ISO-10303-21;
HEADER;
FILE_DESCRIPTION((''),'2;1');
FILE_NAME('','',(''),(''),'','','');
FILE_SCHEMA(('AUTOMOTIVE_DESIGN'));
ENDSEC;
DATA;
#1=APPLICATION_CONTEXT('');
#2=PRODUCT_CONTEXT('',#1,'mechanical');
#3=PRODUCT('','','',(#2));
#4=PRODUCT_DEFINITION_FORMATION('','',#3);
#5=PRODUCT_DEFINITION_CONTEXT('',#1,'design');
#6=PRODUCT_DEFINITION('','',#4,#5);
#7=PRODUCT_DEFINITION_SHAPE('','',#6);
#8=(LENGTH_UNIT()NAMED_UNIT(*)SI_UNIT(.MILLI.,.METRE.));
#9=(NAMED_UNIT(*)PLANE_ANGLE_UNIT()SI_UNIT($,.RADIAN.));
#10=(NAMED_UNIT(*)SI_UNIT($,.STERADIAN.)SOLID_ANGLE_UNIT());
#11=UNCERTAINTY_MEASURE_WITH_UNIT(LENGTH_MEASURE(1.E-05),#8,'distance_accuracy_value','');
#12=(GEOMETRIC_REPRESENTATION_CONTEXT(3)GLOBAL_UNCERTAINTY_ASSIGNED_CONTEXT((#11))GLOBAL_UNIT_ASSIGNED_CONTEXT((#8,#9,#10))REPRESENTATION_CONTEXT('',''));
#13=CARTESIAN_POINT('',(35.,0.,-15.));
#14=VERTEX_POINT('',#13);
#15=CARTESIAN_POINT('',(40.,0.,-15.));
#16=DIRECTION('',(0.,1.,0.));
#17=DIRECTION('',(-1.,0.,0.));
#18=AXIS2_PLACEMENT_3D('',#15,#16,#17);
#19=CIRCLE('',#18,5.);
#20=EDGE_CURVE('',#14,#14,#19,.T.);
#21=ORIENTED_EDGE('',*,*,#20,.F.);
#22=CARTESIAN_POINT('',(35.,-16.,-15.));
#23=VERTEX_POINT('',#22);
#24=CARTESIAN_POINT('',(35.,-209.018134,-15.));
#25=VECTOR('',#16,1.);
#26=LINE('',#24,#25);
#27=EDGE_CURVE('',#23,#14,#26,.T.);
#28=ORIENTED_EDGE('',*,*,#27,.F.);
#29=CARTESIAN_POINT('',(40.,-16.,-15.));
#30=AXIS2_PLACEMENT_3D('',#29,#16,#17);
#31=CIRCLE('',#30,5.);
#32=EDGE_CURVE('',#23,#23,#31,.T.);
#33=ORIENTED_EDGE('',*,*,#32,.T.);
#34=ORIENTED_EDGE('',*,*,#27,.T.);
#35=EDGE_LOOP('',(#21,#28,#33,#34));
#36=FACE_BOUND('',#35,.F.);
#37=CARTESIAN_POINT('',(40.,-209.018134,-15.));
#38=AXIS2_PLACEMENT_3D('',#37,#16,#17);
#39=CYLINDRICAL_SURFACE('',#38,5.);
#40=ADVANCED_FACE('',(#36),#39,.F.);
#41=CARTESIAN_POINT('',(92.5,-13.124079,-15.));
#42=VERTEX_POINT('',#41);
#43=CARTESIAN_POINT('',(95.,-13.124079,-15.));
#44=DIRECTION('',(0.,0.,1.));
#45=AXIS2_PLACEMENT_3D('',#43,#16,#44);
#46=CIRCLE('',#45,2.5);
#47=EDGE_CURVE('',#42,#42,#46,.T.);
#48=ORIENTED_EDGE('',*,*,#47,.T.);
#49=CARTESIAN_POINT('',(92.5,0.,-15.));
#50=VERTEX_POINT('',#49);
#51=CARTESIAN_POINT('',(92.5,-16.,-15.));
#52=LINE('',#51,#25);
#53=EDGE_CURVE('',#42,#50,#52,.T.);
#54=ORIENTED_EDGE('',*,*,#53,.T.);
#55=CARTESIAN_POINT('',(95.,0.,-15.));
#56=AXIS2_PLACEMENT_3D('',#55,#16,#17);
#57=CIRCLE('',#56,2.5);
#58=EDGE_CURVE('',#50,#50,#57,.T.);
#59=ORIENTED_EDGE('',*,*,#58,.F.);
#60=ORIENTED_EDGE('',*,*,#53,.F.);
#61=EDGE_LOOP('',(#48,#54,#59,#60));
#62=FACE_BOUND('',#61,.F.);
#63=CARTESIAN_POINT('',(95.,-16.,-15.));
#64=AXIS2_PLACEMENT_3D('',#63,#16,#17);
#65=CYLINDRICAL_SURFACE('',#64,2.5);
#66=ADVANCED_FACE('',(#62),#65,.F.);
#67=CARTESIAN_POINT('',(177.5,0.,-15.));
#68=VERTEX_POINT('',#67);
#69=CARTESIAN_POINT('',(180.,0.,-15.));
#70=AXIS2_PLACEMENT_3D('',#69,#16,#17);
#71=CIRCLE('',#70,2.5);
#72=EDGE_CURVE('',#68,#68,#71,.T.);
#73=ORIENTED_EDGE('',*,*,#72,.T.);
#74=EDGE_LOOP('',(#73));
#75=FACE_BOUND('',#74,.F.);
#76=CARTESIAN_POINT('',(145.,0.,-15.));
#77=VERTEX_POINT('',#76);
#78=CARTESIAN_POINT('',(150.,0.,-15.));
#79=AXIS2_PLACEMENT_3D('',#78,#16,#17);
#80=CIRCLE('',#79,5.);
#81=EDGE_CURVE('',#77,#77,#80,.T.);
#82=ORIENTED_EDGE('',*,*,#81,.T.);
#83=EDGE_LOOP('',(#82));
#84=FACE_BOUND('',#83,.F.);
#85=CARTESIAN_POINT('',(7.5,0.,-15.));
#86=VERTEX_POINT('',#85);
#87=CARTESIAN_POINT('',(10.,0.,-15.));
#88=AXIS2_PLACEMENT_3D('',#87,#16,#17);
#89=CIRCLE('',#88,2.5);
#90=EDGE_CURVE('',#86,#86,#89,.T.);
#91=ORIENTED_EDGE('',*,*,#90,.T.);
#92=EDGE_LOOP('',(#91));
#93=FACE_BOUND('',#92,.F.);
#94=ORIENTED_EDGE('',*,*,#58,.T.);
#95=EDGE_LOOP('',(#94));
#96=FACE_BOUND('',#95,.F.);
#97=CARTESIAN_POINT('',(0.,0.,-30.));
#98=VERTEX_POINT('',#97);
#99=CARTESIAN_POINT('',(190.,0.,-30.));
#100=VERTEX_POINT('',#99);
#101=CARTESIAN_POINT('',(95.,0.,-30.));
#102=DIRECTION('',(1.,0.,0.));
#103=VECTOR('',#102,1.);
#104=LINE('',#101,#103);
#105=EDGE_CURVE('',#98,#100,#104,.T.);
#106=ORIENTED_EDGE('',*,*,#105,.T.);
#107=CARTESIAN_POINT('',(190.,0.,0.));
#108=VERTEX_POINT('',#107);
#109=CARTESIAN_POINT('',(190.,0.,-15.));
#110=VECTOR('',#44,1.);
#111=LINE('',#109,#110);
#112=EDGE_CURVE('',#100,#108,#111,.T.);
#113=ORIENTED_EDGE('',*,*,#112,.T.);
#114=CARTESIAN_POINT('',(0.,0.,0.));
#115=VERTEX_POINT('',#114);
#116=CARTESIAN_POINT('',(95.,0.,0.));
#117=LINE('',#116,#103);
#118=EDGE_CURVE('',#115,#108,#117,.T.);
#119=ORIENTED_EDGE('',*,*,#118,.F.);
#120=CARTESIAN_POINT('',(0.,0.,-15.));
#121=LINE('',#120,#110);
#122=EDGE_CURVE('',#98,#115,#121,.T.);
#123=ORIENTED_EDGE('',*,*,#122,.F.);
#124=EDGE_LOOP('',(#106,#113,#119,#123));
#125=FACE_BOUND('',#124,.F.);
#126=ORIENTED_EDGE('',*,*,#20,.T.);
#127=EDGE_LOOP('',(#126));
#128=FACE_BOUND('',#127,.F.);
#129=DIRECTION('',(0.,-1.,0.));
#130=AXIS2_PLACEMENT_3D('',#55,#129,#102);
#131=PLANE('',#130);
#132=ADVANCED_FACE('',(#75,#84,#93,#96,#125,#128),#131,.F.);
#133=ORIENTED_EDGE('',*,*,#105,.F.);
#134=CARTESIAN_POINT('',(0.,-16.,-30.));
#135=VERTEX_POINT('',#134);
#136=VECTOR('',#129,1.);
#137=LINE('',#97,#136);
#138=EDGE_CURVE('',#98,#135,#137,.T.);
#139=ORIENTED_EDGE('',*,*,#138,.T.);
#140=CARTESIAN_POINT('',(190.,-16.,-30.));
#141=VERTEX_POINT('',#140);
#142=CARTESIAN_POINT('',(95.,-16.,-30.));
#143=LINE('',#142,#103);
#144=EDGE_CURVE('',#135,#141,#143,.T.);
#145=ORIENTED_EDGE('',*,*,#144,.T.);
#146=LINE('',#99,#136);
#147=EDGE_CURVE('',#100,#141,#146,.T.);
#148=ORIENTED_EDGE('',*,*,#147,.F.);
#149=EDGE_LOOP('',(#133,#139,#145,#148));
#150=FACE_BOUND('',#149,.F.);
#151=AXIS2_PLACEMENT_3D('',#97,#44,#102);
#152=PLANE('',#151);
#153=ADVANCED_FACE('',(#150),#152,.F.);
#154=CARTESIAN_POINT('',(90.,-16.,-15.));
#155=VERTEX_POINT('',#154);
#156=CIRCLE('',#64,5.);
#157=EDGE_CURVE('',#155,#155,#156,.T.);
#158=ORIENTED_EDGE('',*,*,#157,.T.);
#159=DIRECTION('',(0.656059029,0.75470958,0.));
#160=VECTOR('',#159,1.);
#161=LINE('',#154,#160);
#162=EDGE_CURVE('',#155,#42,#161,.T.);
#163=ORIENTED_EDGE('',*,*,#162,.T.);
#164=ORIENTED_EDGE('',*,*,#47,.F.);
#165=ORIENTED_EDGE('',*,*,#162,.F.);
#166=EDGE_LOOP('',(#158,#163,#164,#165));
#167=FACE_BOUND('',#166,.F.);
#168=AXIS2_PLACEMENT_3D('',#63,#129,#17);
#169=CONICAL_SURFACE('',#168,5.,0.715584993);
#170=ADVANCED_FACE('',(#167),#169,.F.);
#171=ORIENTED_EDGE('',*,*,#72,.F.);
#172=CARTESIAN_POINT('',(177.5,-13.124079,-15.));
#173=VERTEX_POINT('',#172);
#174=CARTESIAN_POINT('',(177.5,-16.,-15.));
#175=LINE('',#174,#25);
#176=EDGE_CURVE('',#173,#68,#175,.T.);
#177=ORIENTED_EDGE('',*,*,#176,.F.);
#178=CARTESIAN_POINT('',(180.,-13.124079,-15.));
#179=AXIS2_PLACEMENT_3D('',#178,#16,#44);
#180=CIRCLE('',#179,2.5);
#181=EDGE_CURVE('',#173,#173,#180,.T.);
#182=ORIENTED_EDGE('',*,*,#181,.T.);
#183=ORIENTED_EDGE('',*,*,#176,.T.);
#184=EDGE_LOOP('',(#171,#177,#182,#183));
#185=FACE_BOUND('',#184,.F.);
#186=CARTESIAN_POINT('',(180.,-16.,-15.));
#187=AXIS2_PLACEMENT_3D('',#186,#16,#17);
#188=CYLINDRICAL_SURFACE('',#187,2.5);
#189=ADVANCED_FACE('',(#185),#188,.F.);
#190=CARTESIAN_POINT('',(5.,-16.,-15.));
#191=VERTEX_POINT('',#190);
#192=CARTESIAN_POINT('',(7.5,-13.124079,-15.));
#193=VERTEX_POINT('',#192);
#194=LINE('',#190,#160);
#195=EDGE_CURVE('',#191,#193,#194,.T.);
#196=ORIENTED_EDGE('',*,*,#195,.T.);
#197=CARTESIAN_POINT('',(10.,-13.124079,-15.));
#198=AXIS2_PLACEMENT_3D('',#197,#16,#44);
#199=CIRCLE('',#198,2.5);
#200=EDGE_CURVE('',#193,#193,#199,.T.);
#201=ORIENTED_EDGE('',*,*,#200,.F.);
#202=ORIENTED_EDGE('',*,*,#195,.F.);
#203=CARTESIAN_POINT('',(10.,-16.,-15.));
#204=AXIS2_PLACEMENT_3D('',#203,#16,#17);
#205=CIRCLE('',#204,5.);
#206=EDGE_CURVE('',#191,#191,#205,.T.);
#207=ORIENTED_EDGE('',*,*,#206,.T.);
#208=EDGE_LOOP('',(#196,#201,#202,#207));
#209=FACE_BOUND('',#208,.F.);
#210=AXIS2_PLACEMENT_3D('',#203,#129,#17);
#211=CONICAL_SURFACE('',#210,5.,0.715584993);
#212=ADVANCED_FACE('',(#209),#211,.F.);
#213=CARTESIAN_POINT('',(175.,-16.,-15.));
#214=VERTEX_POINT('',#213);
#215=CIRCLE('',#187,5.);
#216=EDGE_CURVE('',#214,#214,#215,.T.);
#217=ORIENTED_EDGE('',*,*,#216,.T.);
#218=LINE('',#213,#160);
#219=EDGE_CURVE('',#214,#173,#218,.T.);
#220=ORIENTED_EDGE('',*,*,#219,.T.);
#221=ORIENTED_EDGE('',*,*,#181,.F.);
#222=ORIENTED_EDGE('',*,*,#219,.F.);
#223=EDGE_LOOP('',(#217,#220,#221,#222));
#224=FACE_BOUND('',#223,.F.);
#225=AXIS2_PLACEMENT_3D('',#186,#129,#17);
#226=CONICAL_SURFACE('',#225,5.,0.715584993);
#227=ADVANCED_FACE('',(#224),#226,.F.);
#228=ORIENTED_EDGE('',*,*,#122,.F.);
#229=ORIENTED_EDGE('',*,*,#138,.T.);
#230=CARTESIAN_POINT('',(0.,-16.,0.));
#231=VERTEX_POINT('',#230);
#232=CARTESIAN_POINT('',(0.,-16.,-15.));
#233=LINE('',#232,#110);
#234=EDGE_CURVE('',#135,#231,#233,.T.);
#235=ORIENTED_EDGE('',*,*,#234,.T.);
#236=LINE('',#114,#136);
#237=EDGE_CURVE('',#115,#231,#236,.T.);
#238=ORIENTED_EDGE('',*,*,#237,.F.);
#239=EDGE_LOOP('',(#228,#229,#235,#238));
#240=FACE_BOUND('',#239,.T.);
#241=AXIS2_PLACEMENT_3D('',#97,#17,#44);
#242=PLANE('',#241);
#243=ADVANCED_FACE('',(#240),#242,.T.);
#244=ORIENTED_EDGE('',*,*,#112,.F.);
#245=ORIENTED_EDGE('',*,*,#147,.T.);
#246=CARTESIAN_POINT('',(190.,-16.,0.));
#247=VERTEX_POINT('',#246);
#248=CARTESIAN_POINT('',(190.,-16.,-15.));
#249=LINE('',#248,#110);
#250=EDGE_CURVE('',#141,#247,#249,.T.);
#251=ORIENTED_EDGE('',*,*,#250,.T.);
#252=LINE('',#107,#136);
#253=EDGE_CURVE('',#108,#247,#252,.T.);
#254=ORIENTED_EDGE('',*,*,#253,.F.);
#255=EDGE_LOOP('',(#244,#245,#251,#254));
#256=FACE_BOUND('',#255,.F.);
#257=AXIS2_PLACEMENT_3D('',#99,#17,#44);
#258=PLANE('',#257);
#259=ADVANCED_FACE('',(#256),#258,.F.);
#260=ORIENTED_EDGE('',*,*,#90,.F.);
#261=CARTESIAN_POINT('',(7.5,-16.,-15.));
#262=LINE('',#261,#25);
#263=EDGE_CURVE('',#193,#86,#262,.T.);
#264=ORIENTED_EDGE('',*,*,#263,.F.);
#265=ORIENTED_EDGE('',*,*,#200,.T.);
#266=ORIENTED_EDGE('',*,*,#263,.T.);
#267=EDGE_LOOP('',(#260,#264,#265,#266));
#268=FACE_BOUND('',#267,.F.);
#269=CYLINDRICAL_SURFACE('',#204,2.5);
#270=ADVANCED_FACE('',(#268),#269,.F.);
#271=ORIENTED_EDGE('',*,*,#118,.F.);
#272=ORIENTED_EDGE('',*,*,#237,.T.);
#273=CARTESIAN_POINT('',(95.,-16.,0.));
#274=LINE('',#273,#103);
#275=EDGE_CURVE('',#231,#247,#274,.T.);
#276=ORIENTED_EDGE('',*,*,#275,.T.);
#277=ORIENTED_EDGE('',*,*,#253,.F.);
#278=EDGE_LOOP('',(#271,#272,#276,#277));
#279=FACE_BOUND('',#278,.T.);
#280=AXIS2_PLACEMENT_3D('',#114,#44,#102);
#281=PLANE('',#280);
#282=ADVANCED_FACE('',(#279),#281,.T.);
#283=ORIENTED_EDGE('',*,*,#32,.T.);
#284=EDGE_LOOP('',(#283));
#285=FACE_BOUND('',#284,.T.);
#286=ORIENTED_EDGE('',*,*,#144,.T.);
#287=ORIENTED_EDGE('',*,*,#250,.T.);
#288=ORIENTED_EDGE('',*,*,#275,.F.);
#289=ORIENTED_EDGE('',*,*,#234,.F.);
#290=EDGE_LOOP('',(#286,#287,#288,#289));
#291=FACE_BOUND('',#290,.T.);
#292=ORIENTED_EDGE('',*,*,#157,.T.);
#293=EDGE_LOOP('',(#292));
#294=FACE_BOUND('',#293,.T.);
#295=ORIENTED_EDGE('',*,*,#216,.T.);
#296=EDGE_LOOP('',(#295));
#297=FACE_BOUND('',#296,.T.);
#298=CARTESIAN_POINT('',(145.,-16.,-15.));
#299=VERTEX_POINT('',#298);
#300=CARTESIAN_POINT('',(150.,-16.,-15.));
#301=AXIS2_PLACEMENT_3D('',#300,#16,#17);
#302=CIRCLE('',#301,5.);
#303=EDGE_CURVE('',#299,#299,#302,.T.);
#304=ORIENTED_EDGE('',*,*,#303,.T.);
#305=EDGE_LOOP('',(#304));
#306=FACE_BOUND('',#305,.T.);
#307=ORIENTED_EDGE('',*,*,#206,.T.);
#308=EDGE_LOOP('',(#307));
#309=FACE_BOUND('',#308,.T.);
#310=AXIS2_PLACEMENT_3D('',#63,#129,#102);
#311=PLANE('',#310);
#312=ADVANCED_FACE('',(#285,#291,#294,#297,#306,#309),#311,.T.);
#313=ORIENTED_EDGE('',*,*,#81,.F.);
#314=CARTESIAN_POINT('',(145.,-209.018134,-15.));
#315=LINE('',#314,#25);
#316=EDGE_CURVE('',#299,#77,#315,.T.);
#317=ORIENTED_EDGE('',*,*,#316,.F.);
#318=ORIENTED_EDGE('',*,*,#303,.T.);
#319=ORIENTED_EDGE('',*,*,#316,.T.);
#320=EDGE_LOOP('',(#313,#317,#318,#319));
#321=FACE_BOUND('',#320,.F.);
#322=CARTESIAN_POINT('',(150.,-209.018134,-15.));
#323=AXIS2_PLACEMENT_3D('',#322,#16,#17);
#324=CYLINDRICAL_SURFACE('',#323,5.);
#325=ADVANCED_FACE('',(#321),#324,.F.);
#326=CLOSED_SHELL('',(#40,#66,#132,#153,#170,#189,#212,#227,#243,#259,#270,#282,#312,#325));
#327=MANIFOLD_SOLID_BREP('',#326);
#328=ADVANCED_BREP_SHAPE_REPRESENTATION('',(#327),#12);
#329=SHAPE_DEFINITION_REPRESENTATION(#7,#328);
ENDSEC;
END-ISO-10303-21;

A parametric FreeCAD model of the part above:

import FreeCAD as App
import Part
import Sketcher


def add_polygon(sketch, points):
    """Adds a closed chain of lines whose ends are joined by coincident constraints."""
    first, n = sketch.GeometryCount, len(points)
    for a, b in zip(points, points[1:] + points[:1]):
        sketch.addGeometry(Part.LineSegment(App.Vector(*a, 0), App.Vector(*b, 0)), False)
    for i in range(n):
        sketch.addConstraint(Sketcher.Constraint("Coincident", first + i, 2, first + (i + 1) % n, 1))

doc = App.newDocument("Part")
body = doc.addObject("PartDesign::Body", "Body")

sketch1 = body.newObject("Sketcher::SketchObject", "Sketch")
sketch1.AttachmentSupport = (doc.getObject("XZ_Plane"), [""])
sketch1.MapMode = "FlatFace"
add_polygon(sketch1, [(0, 0), (0, -30), (190, -30), (190, 0)])
sketch1.addConstraint([
    Sketcher.Constraint("Vertical", 0),
    Sketcher.Constraint("Horizontal", 1),
    Sketcher.Constraint("Vertical", 2),
    Sketcher.Constraint("Horizontal", 3),
    Sketcher.Constraint("Coincident", 3, 2, -1, 1),
    Sketcher.Constraint("DistanceX", 1, 1, 1, 2, 190.0),
    Sketcher.Constraint("DistanceY", 0, 2, 0, 1, 30.0),
])
pad1 = body.newObject("PartDesign::Pad", "Pad")
pad1.Profile = sketch1
pad1.Length = 16

sketch2 = body.newObject("Sketcher::SketchObject", "Sketch001")
sketch2.AttachmentSupport = (doc.getObject("XZ_Plane"), [""])
sketch2.MapMode = "FlatFace"
sketch2.AttachmentOffset = App.Placement(App.Vector(0, 0, 16), App.Rotation())
sketch2.addGeometry([
    Part.Circle(App.Vector(40, -15, 0), App.Vector(0, 0, 1), 5),
    Part.Circle(App.Vector(150, -15, 0), App.Vector(0, 0, 1), 5),
], False)
sketch2.addConstraint([
    Sketcher.Constraint("Equal", 0, 1),
    Sketcher.Constraint("Horizontal", 0, 3, 1, 3),
    Sketcher.Constraint("Diameter", 0, 10.0),
    Sketcher.Constraint("DistanceX", -1, 1, 0, 3, 40.0),
    Sketcher.Constraint("DistanceY", 0, 3, -1, 1, 15.0),
    Sketcher.Constraint("DistanceX", -1, 1, 1, 3, 150.0),
])
doc.recompute()
hole = body.newObject("PartDesign::Hole", "Hole")
hole.Profile = sketch2
hole.ThreadType = "None"
hole.Diameter = 10
hole.DepthType = "ThroughAll"

sketch3 = body.newObject("Sketcher::SketchObject", "Sketch002")
sketch3.AttachmentSupport = (doc.getObject("XZ_Plane"), [""])
sketch3.MapMode = "FlatFace"
sketch3.AttachmentOffset = App.Placement(App.Vector(0, 0, 16), App.Rotation())
sketch3.addGeometry([
    Part.Circle(App.Vector(10, -15, 0), App.Vector(0, 0, 1), 2.5),
    Part.Circle(App.Vector(95, -15, 0), App.Vector(0, 0, 1), 2.5),
    Part.Circle(App.Vector(180, -15, 0), App.Vector(0, 0, 1), 2.5),
], False)
sketch3.addConstraint([
    Sketcher.Constraint("Equal", 0, 1),
    Sketcher.Constraint("Equal", 1, 2),
    Sketcher.Constraint("Horizontal", 0, 3, 1, 3),
    Sketcher.Constraint("Horizontal", 1, 3, 2, 3),
    Sketcher.Constraint("Diameter", 0, 5.0),
    Sketcher.Constraint("DistanceX", -1, 1, 0, 3, 10.0),
    Sketcher.Constraint("DistanceY", 0, 3, -1, 1, 15.0),
    Sketcher.Constraint("DistanceX", -1, 1, 1, 3, 95.0),
    Sketcher.Constraint("DistanceX", -1, 1, 2, 3, 180.0),
])
doc.recompute()
hole2 = body.newObject("PartDesign::Hole", "Hole001")
hole2.Profile = sketch3
hole2.ThreadType = "None"
hole2.Diameter = 5
hole2.DepthType = "ThroughAll"
hole2.HoleCutType = "Countersink"
hole2.HoleCutDiameter = 10
hole2.HoleCutCountersinkAngle = 82

doc.recompute()
